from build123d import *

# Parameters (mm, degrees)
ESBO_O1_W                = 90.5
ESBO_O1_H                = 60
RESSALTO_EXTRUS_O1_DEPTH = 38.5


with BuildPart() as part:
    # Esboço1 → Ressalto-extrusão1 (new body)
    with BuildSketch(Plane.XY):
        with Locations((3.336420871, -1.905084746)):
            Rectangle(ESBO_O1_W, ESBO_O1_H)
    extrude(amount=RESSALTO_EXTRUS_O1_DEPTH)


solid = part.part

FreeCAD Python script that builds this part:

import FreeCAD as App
import Part
import Sketcher
Q = App.Units.Quantity


def add_polygon(sketch, points):
    """Adds a closed chain of lines whose ends are joined by coincident constraints."""
    first, n = sketch.GeometryCount, len(points)
    for a, b in zip(points, points[1:] + points[:1]):
        sketch.addGeometry(Part.LineSegment(App.Vector(*a, 0), App.Vector(*b, 0)), False)
    for i in range(n):
        sketch.addConstraint(Sketcher.Constraint("Coincident", first + i, 2, first + (i + 1) % n, 1))

doc = App.newDocument("Part")
body = doc.addObject("PartDesign::Body", "Body")

sketch1 = body.newObject("Sketcher::SketchObject", "Sketch")
sketch1.AttachmentSupport = (doc.getObject("XY_Plane"), [""])
sketch1.MapMode = "FlatFace"
add_polygon(sketch1, [(-42, 28), (-42, -32), (49, -32), (49, 28)])
sketch1.addConstraint([
    Sketcher.Constraint("Vertical", 0),
    Sketcher.Constraint("Horizontal", 1),
    Sketcher.Constraint("Vertical", 2),
    Sketcher.Constraint("Horizontal", 3),
    Sketcher.Constraint("DistanceY", 0, 2, 0, 1, Q("60 mm")),
    Sketcher.Constraint("DistanceX", 1, 1, 1, 2, Q("90.5 mm")),
    Sketcher.Constraint("DistanceX", 0, 2, -1, 1, Q("41.913579 mm")),
    Sketcher.Constraint("DistanceY", 0, 2, -1, 1, Q("31.905085 mm")),
])
pad1 = body.newObject("PartDesign::Pad", "Pad")
pad1.Profile = sketch1
pad1.Length = 38.5

doc.recompute()
